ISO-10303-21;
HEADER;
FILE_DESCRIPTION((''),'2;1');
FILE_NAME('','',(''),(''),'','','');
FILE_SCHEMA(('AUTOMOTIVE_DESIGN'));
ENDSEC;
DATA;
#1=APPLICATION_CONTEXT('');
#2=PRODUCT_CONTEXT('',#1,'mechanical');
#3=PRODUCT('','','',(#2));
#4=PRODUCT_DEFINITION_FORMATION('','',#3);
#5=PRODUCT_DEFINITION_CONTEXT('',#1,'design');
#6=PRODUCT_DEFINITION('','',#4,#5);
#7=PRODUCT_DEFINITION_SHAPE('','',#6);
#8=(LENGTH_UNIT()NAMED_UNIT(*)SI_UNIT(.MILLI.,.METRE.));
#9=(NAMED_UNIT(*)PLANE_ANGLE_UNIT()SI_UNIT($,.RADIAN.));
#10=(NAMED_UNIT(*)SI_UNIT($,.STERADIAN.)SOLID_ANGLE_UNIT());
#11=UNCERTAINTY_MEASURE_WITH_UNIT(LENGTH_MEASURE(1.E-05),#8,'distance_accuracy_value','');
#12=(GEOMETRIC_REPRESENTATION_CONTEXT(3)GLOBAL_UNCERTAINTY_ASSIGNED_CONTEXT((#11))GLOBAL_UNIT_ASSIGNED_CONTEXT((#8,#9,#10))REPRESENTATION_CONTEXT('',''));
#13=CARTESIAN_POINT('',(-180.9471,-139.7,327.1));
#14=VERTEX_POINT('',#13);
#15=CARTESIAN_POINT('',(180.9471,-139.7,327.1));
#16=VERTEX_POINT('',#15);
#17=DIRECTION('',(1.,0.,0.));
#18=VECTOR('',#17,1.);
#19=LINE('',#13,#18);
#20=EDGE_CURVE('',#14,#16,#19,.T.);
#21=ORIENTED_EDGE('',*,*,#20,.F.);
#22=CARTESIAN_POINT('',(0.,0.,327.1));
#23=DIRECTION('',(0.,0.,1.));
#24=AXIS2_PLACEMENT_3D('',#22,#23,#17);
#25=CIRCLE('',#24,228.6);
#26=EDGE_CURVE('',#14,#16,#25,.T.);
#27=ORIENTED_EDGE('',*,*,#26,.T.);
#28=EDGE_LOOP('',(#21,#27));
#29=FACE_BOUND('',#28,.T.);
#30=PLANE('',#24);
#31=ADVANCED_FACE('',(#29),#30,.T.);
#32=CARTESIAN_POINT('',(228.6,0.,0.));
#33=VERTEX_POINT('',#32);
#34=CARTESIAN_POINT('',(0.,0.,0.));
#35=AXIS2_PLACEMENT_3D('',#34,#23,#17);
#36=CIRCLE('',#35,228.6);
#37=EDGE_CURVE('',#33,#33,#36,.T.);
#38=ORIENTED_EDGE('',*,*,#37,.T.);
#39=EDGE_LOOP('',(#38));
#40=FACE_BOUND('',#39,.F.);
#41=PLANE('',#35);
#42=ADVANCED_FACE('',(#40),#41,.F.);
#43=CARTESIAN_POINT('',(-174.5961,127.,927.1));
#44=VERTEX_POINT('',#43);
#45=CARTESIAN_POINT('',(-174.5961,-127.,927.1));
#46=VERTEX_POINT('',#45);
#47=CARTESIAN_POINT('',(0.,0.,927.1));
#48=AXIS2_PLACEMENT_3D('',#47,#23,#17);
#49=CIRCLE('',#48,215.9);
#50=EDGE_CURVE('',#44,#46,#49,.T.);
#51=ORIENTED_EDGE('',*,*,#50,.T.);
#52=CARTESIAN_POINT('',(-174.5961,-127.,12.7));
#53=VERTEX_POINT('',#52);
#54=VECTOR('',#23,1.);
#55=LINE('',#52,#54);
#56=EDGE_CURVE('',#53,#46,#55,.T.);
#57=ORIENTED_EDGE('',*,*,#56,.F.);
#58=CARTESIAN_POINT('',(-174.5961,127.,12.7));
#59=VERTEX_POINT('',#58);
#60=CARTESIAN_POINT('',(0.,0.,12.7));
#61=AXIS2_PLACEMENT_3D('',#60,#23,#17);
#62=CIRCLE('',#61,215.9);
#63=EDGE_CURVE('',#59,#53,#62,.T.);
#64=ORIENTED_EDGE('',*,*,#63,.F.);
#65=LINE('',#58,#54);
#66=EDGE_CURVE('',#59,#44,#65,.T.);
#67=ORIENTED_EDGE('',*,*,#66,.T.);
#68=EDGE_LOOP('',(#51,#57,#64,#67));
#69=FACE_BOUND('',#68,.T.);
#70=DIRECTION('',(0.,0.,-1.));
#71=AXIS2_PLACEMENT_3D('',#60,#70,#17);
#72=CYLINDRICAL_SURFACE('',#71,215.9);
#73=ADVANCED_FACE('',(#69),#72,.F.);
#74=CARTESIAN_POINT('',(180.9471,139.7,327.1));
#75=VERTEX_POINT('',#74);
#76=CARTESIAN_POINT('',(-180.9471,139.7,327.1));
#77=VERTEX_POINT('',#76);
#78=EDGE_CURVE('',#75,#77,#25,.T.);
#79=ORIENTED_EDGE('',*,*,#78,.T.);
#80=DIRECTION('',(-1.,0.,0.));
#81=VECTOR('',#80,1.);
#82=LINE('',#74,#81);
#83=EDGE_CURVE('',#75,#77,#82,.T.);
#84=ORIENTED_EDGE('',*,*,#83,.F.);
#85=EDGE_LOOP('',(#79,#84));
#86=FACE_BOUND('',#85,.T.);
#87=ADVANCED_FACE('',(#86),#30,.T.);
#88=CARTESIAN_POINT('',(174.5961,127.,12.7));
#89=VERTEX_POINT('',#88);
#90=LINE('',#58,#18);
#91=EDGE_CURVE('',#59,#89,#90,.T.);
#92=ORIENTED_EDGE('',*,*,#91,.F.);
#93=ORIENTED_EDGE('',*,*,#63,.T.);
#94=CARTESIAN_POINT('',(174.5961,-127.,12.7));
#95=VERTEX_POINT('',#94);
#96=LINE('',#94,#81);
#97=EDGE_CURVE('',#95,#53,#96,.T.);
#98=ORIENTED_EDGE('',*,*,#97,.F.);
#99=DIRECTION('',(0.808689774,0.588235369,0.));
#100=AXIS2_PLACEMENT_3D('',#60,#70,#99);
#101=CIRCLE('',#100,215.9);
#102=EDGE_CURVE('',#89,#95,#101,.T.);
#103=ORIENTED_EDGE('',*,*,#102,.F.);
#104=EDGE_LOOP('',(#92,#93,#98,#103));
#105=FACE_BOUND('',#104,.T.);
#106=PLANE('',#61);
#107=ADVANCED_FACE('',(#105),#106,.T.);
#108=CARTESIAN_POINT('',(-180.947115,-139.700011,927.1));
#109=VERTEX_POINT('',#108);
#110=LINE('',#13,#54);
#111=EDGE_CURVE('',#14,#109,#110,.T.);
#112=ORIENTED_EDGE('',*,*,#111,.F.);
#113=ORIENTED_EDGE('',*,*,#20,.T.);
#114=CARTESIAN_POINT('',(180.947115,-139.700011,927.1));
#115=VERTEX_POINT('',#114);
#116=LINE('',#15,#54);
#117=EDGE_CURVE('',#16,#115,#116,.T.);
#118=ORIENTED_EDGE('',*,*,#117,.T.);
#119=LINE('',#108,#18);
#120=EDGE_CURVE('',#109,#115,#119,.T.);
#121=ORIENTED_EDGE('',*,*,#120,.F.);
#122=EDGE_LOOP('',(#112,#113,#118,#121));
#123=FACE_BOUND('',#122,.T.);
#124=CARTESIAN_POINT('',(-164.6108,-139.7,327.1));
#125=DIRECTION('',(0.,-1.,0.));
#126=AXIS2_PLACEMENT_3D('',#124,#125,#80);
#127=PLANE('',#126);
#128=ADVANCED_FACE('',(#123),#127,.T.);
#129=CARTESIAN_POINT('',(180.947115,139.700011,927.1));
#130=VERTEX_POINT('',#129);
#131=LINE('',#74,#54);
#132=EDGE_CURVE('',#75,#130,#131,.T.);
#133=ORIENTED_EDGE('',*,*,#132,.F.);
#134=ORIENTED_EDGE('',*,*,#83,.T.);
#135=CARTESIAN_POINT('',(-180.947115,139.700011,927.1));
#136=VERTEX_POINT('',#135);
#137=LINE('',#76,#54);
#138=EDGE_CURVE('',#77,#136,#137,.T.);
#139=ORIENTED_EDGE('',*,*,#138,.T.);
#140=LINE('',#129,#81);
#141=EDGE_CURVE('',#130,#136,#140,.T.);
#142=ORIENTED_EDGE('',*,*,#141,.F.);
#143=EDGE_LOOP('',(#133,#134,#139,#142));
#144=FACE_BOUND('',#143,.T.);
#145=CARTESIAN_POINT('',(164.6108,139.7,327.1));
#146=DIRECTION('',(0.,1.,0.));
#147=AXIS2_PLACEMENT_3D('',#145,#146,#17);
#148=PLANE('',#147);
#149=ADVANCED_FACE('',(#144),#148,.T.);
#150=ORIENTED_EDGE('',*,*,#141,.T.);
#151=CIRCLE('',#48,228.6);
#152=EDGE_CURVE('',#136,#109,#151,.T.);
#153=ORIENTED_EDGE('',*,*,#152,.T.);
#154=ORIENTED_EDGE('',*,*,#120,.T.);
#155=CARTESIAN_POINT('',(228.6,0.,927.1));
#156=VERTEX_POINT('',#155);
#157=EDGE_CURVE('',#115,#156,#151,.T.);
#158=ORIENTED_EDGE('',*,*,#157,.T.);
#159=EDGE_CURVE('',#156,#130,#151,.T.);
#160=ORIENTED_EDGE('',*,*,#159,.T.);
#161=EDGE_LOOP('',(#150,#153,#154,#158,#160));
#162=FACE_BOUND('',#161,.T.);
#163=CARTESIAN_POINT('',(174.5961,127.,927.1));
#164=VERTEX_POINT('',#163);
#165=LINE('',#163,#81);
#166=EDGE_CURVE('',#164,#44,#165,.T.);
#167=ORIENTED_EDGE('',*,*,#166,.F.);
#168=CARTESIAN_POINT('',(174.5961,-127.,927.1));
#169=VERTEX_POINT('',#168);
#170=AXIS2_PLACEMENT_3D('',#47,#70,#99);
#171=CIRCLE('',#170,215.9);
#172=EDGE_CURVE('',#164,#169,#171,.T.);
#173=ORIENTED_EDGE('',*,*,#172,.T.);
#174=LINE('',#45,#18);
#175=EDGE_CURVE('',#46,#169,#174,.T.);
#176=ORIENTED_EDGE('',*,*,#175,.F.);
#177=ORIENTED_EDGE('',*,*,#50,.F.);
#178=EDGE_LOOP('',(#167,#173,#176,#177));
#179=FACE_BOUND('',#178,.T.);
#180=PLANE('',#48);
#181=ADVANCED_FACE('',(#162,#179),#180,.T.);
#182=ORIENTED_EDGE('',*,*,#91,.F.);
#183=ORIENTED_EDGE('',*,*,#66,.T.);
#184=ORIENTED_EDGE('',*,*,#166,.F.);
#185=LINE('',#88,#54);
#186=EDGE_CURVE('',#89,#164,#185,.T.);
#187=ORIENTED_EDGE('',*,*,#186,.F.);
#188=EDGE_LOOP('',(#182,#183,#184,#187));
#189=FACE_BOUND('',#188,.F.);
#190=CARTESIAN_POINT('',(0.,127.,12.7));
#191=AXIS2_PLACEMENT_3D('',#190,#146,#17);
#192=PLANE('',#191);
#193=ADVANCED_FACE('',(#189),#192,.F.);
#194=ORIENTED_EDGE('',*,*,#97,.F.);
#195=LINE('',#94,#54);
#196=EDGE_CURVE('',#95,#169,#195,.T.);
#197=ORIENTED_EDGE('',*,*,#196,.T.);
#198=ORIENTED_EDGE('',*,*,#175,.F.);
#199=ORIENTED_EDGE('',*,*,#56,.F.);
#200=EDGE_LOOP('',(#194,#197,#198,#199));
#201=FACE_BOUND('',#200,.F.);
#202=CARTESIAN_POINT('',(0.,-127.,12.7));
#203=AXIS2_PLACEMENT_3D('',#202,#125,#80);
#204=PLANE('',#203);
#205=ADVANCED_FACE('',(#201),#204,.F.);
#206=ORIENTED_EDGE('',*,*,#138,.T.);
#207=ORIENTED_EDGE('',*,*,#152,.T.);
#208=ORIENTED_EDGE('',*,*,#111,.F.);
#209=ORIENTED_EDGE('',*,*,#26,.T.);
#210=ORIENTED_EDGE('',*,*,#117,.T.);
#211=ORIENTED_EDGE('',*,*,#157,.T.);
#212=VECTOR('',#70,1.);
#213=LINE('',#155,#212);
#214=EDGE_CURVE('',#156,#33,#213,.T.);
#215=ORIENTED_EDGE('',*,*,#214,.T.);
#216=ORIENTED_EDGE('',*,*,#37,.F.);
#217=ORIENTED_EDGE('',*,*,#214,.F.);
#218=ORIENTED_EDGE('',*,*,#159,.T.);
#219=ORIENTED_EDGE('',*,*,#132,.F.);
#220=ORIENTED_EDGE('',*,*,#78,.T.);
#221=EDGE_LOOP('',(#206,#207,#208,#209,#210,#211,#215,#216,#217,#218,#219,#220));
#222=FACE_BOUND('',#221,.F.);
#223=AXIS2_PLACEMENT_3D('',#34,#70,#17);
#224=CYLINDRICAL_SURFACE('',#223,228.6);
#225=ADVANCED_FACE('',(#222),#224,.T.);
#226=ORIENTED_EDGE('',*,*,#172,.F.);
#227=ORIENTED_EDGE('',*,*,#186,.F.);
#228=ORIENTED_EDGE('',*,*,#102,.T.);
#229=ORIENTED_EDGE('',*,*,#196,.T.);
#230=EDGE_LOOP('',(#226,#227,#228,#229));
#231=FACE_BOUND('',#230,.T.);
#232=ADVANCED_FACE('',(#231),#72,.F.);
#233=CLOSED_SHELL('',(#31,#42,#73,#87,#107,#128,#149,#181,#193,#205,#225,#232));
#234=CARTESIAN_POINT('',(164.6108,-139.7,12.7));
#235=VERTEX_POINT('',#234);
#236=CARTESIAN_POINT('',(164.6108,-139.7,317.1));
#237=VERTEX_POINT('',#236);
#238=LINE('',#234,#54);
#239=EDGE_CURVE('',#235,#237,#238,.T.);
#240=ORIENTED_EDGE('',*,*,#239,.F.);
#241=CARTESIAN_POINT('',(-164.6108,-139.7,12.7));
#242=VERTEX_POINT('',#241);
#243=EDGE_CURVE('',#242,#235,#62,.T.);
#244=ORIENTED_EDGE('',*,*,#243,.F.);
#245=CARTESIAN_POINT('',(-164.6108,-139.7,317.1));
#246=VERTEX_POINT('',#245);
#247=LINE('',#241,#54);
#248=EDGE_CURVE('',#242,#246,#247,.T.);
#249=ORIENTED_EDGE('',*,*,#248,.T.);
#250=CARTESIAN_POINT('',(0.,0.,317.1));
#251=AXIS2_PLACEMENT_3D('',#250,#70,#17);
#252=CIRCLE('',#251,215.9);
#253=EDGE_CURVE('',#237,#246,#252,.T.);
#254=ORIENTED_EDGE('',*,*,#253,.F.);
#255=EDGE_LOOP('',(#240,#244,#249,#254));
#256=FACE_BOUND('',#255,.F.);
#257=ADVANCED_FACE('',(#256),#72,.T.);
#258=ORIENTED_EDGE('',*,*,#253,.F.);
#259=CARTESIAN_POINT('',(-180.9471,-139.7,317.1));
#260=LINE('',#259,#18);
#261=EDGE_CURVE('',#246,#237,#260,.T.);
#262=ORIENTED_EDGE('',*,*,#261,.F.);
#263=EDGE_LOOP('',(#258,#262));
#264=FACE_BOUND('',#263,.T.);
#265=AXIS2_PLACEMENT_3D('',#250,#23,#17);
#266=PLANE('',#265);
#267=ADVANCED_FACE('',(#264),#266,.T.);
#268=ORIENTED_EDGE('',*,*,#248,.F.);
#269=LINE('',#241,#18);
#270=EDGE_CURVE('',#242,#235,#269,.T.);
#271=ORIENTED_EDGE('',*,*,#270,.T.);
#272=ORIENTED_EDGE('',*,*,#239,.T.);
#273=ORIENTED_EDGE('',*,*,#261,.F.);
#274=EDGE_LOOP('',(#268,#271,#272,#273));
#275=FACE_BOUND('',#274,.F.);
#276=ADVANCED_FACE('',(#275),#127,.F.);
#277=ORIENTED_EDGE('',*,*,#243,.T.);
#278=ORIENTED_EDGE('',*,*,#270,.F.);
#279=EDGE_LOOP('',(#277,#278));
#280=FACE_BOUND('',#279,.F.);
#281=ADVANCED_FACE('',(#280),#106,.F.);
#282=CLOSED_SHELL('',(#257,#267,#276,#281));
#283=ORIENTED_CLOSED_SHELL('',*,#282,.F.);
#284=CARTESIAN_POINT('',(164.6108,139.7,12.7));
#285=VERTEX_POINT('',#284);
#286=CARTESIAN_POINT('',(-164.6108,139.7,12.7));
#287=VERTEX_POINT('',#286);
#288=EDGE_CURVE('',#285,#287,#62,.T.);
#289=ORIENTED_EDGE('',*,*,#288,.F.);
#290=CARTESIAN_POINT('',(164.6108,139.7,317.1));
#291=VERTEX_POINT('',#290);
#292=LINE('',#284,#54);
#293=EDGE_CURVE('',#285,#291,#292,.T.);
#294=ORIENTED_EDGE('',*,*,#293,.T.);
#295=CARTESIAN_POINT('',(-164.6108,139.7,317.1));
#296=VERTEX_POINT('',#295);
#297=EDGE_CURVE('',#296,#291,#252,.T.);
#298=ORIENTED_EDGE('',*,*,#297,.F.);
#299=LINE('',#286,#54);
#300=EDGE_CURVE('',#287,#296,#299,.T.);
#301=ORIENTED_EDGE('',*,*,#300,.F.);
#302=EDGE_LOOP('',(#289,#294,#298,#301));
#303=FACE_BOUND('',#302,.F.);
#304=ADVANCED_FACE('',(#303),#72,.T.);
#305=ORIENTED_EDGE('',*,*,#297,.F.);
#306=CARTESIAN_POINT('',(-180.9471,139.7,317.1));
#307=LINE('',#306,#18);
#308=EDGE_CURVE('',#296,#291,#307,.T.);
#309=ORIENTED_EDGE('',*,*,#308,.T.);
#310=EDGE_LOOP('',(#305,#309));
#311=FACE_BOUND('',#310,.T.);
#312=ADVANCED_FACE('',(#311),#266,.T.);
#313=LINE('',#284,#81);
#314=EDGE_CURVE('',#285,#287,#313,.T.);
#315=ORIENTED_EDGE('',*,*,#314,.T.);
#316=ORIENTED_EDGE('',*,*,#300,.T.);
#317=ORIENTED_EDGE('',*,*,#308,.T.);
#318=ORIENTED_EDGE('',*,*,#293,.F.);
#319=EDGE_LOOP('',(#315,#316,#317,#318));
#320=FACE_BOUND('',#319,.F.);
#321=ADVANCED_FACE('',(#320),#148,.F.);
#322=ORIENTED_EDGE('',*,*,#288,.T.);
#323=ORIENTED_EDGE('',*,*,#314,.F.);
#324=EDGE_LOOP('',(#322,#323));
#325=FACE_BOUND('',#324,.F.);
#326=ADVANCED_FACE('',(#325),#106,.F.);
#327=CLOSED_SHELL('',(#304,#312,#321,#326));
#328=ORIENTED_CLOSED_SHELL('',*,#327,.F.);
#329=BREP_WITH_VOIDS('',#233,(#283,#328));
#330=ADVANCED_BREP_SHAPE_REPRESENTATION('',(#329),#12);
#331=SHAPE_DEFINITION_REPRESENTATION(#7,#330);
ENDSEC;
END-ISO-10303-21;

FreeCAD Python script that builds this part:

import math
import FreeCAD as App
import Part
import Sketcher
Q = App.Units.Quantity

doc = App.newDocument("Part")
body = doc.addObject("PartDesign::Body", "Body")

# Sketch on XY plane
sketch1 = body.newObject("Sketcher::SketchObject", "Sketch")
sketch1.AttachmentSupport = (doc.getObject("XY_Plane"), [""])
sketch1.MapMode = "FlatFace"
sketch1.addGeometry(Part.Circle(App.Vector(0, 0, 0), App.Vector(0, 0, 1), 229), False)
sketch1.addConstraint([
    Sketcher.Constraint("Coincident", 0, 3, -1, 1),
    Sketcher.Constraint("Diameter", 0, Q("18 in")),
])
pad1 = body.newObject("PartDesign::Pad", "Pad")
pad1.Profile = sketch1
pad1.Length = Q("0.5 in")

# Sketch on XY plane
sketch2 = body.newObject("Sketcher::SketchObject", "Sketch001")
sketch2.AttachmentSupport = (doc.getObject("XY_Plane"), [""])
sketch2.MapMode = "FlatFace"
sketch2.AttachmentOffset = App.Placement(App.Vector(0, 0, 0.5 * 25.4), App.Rotation())
sketch2.addGeometry([
    Part.Circle(App.Vector(0, 0, 0), App.Vector(0, 0, 1), 229),
    Part.Circle(App.Vector(0, 0, 0), App.Vector(0, 0, 1), 216),
], False)
sketch2.addConstraint([
    Sketcher.Constraint("Coincident", 0, 3, -1, 1),
    Sketcher.Constraint("Coincident", 1, 3, -1, 1),
    Sketcher.Constraint("Diameter", 0, Q("18 in")),
    Sketcher.Constraint("Diameter", 1, Q("17 in")),
])
pad2 = body.newObject("PartDesign::Pad", "Pad001")
pad2.Profile = sketch2
pad2.Length = Q("36 in")

# Sketch on XY plane
sketch3 = body.newObject("Sketcher::SketchObject", "Sketch002")
sketch3.AttachmentSupport = (doc.getObject("XY_Plane"), [""])
sketch3.MapMode = "FlatFace"
sketch3.AttachmentOffset = App.Placement(App.Vector(0, 0, 0.5 * 25.4), App.Rotation())
sketch3.addGeometry([
    Part.LineSegment(App.Vector(-165, -140, 0), App.Vector(165, -140, 0)),  # 0
    Part.ArcOfCircle(Part.Circle(App.Vector(0, 0, 0), App.Vector(0, 0, 1), 216), math.radians(-40.32), math.radians(-36.03)),  # 1
    Part.LineSegment(App.Vector(175, -127, 0), App.Vector(-175, -127, 0)),  # 2
    Part.ArcOfCircle(Part.Circle(App.Vector(0, 0, 0), App.Vector(0, 0, 1), 216), math.radians(-143.97), math.radians(-139.68)),  # 3
    Part.ArcOfCircle(Part.Circle(App.Vector(0, 0, 0), App.Vector(0, 0, 1), 216), math.radians(139.68), math.radians(143.97)),  # 4
    Part.LineSegment(App.Vector(-175, 127, 0), App.Vector(175, 127, 0)),  # 5
    Part.ArcOfCircle(Part.Circle(App.Vector(0, 0, 0), App.Vector(0, 0, 1), 216), math.radians(36.03), math.radians(40.32)),  # 6
    Part.LineSegment(App.Vector(165, 140, 0), App.Vector(-165, 140, 0)),  # 7
], False)
sketch3.addConstraint([
    Sketcher.Constraint("Coincident", 0, 2, 1, 1),
    Sketcher.Constraint("Coincident", 1, 2, 2, 1),
    Sketcher.Constraint("Coincident", 2, 2, 3, 1),
    Sketcher.Constraint("Coincident", 3, 2, 0, 1),
    Sketcher.Constraint("Coincident", 4, 2, 5, 1),
    Sketcher.Constraint("Coincident", 5, 2, 6, 1),
    Sketcher.Constraint("Coincident", 6, 2, 7, 1),
    Sketcher.Constraint("Coincident", 7, 2, 4, 1),
    Sketcher.Constraint("Horizontal", 0),
    Sketcher.Constraint("Horizontal", 2),
    Sketcher.Constraint("Horizontal", 5),
    Sketcher.Constraint("Horizontal", 7),
    Sketcher.Constraint("Coincident", 1, 3, -1, 1),
    Sketcher.Constraint("Coincident", 3, 3, -1, 1),
    Sketcher.Constraint("Coincident", 4, 3, -1, 1),
    Sketcher.Constraint("Coincident", 6, 3, -1, 1),
    Sketcher.Constraint("Equal", 1, 3),
    Sketcher.Constraint("Equal", 3, 4),
    Sketcher.Constraint("Equal", 4, 6),
    Sketcher.Constraint("Vertical", 2, 2, 4, 2),
    Sketcher.Constraint("Vertical", 0, 2, 6, 2),
    Sketcher.Constraint("DistanceY", 1, 2, -1, 1, Q("5 in")),
    Sketcher.Constraint("Radius", 1, Q("8.5 in")),
    Sketcher.Constraint("DistanceY", 0, 2, 1, 2, Q("0.5 in")),
])
pad3 = body.newObject("PartDesign::Pad", "Pad002")
pad3.Profile = sketch3
pad3.Length = Q("36 in")

# Sketch on XY plane
sketch4 = body.newObject("Sketcher::SketchObject", "Sketch003")
sketch4.AttachmentSupport = (doc.getObject("XY_Plane"), [""])
sketch4.MapMode = "FlatFace"
sketch4.AttachmentOffset = App.Placement(App.Vector(0, 0, 327.1), App.Rotation())
sketch4.addGeometry([
    Part.ArcOfCircle(Part.Circle(App.Vector(0, 0, 0), App.Vector(0, 0, 1), 229), math.radians(38), math.radians(142)),
    Part.LineSegment(App.Vector(181, 140, 0), App.Vector(-181, 140, 0)),
    Part.ArcOfCircle(Part.Circle(App.Vector(0, 0, 0), App.Vector(0, 0, 1), 229), math.radians(-142), math.radians(-38)),
    Part.LineSegment(App.Vector(-181, -140, 0), App.Vector(181, -140, 0)),
], False)
sketch4.addConstraint([
    Sketcher.Constraint("Coincident", 0, 1, 1, 1),
    Sketcher.Constraint("Coincident", 1, 2, 0, 2),
    Sketcher.Constraint("Coincident", 2, 1, 3, 1),
    Sketcher.Constraint("Coincident", 3, 2, 2, 2),
    Sketcher.Constraint("Horizontal", 1),
    Sketcher.Constraint("Horizontal", 3),
    Sketcher.Constraint("Coincident", 0, 3, -1, 1),
    Sketcher.Constraint("Coincident", 2, 3, -1, 1),
    Sketcher.Constraint("Equal", 0, 2),
    Sketcher.Constraint("Vertical", 1, 2, 2, 1),
    Sketcher.Constraint("Radius", 0, Q("9 in")),
    Sketcher.Constraint("DistanceY", 2, 1, 1, 2, Q("11 in")),
])
pocket1 = body.newObject("PartDesign::Pocket", "Pocket")
pocket1.Profile = sketch4
pocket1.Type = "ThroughAll"
pocket1.Reversed = True

# Sketch on XY plane
sketch5 = body.newObject("Sketcher::SketchObject", "Sketch004")
sketch5.AttachmentSupport = (doc.getObject("XY_Plane"), [""])
sketch5.MapMode = "FlatFace"
sketch5.AttachmentOffset = App.Placement(App.Vector(0, 0, 327.1), App.Rotation())
sketch5.addGeometry([
    Part.LineSegment(App.Vector(181, -140, 0), App.Vector(-181, -140, 0)),
    Part.ArcOfCircle(Part.Circle(App.Vector(0, 0, 0), App.Vector(0, 0, 1), 229), math.radians(-142), math.radians(-38)),
    Part.ArcOfCircle(Part.Circle(App.Vector(0, 0, 0), App.Vector(0, 0, 1), 229), math.radians(38), math.radians(142)),
    Part.LineSegment(App.Vector(-181, 140, 0), App.Vector(181, 140, 0)),
], False)
sketch5.addConstraint([
    Sketcher.Constraint("Coincident", 0, 1, 1, 2),
    Sketcher.Constraint("Coincident", 1, 1, 0, 2),
    Sketcher.Constraint("Coincident", 2, 1, 3, 2),
    Sketcher.Constraint("Coincident", 3, 1, 2, 2),
    Sketcher.Constraint("Horizontal", 0),
    Sketcher.Constraint("Horizontal", 3),
    Sketcher.Constraint("Coincident", 1, 3, -1, 1),
    Sketcher.Constraint("Coincident", 2, 3, -1, 1),
    Sketcher.Constraint("Equal", 1, 2),
    Sketcher.Constraint("Vertical", 0, 1, 2, 1),
    Sketcher.Constraint("Radius", 1, Q("9 in")),
    Sketcher.Constraint("DistanceY", 0, 1, 2, 1, Q("11 in")),
])
pad4 = body.newObject("PartDesign::Pad", "Pad003")
pad4.Profile = sketch5
pad4.Length = Q("0.3937008 in")
pad4.Reversed = True

doc.recompute()
